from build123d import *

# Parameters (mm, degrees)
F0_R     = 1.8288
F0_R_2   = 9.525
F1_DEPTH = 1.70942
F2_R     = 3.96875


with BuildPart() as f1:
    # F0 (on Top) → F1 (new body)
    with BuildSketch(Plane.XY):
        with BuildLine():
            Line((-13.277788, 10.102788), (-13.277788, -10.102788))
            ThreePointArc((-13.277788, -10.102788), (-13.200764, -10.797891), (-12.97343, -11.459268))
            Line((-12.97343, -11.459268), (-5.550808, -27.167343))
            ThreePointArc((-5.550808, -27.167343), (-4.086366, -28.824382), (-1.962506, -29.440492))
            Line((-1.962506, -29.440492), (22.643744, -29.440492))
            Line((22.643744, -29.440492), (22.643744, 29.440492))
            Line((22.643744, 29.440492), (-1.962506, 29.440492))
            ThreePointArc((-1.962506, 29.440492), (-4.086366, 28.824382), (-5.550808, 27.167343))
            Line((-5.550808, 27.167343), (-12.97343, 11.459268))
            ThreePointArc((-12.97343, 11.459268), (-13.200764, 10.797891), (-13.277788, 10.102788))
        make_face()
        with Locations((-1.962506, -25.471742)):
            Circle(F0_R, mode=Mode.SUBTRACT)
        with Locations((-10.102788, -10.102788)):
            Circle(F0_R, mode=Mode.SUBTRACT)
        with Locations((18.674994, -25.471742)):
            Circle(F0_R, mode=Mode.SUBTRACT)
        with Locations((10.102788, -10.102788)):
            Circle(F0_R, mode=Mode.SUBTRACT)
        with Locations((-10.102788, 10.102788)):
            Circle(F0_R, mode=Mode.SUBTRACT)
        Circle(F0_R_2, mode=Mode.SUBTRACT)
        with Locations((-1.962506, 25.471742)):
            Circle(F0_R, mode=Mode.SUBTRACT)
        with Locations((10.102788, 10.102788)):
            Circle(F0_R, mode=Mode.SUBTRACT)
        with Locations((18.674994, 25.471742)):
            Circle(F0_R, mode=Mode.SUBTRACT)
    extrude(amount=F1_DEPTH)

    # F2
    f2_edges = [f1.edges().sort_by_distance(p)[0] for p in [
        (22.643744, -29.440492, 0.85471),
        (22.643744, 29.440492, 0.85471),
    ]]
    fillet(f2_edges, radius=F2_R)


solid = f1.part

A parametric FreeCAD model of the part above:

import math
import FreeCAD as App
import Part
import Sketcher
from FreeCAD import Vector
Q = App.Units.Quantity


def edges_at(feature, points):
    """Names of the edges that pass closest to the given points."""
    edges = feature.Shape.Edges
    near = lambda p: min(range(len(edges)), key=lambda i: edges[i].distToShape(Part.Vertex(*p))[0])
    return sorted({f"Edge{near(p) + 1}" for p in points})

doc = App.newDocument("Part")
params = doc.addObject("Spreadsheet::Sheet", "Params")
for row, (alias, value) in enumerate([
    ("sketch1_diameter", "0.75 in"),
    ("sketch1_diameter2", "0.144 in"),
    ("sketch1_radius", "0.1250002 in"),
    ("sketch1_radius2", "0.15625 in"),
    ("sketch1_width", "0.96875 in"),
    ("pad1_length", "0.0673 in"),
    ("fillet_radius", "0.15625 in"),
], start=1):
    params.set(f"A{row}", alias)
    params.set(f"B{row}", "=" + value)
    params.setAlias(f"B{row}", alias)

body = doc.addObject("PartDesign::Body", "Body")

sketch1 = body.newObject("Sketcher::SketchObject", "Sketch")
sketch1.AttachmentSupport = (doc.getObject("XY_Plane"), [""])
sketch1.MapMode = "FlatFace"
sketch1.addGeometry([
    Part.LineSegment(Vector(-13.3, 10.1, 0), Vector(-13.3, -10.1, 0)),
    Part.ArcOfCircle(Part.Circle(Vector(-10.1, -10.1, 0), Vector(0, 0, 1), 3.2), math.radians(-180), math.radians(-155)),
    Part.LineSegment(Vector(-13, -11.5, 0), Vector(-5.6, -27.2, 0)),
    Part.ArcOfCircle(Part.Circle(Vector(-2, -25.5, 0), Vector(0, 0, 1), 4), math.radians(-155), math.radians(-90)),
    Part.LineSegment(Vector(-2, -29.4, 0), Vector(22.6, -29.4, 0)),
    Part.LineSegment(Vector(22.6, -29.4, 0), Vector(22.6, 29.4, 0)),
    Part.LineSegment(Vector(22.6, 29.4, 0), Vector(-2, 29.4, 0)),
    Part.ArcOfCircle(Part.Circle(Vector(-2, 25.5, 0), Vector(0, 0, 1), 4), math.radians(90), math.radians(155)),
    Part.LineSegment(Vector(-5.6, 27.2, 0), Vector(-13, 11.5, 0)),
    Part.ArcOfCircle(Part.Circle(Vector(-10.1, 10.1, 0), Vector(0, 0, 1), 3.2), math.radians(155), math.radians(180)),
    Part.Circle(Vector(-2, -25.5, 0), Vector(0, 0, 1), 1.8),
    Part.Circle(Vector(-10.1, -10.1, 0), Vector(0, 0, 1), 1.8),
    Part.Circle(Vector(0, 0, 0), Vector(0, 0, 1), 9.5),
    Part.Circle(Vector(18.7, -25.5, 0), Vector(0, 0, 1), 1.8),
    Part.Circle(Vector(10.1, -10.1, 0), Vector(0, 0, 1), 1.8),
    Part.Circle(Vector(-10.1, 10.1, 0), Vector(0, 0, 1), 1.8),
    Part.Circle(Vector(-2, 25.5, 0), Vector(0, 0, 1), 1.8),
    Part.Circle(Vector(10.1, 10.1, 0), Vector(0, 0, 1), 1.8),
    Part.Circle(Vector(18.7, 25.5, 0), Vector(0, 0, 1), 1.8),
], False)
sketch1.addConstraint([
    Sketcher.Constraint("Tangent", 0, 2, 1, 1),
    Sketcher.Constraint("Tangent", 1, 2, 2, 1),
    Sketcher.Constraint("Tangent", 2, 2, 3, 1),
    Sketcher.Constraint("Tangent", 3, 2, 4, 1),
    Sketcher.Constraint("Coincident", 4, 2, 5, 1),
    Sketcher.Constraint("Coincident", 5, 2, 6, 1),
    Sketcher.Constraint("Tangent", 6, 2, 7, 1),
    Sketcher.Constraint("Tangent", 7, 2, 8, 1),
    Sketcher.Constraint("Tangent", 8, 2, 9, 1),
    Sketcher.Constraint("Tangent", 9, 2, 0, 1),
    Sketcher.Constraint("Vertical", 0),
    Sketcher.Constraint("Horizontal", 4),
    Sketcher.Constraint("Vertical", 5),
    Sketcher.Constraint("Horizontal", 6),
    Sketcher.Constraint("Coincident", 12, 3, -1, 1),
    Sketcher.Constraint("Coincident", 10, 3, 3, 3),
    Sketcher.Constraint("Coincident", 11, 3, 1, 3),
    Sketcher.Constraint("Coincident", 15, 3, 9, 3),
    Sketcher.Constraint("Coincident", 16, 3, 7, 3),
    Sketcher.Constraint("Equal", 3, 7),
    Sketcher.Constraint("Equal", 1, 9),
    Sketcher.Constraint("Equal", 10, 11),
    Sketcher.Constraint("Equal", 11, 13),
    Sketcher.Constraint("Equal", 13, 14),
    Sketcher.Constraint("Equal", 14, 15),
    Sketcher.Constraint("Equal", 15, 16),
    Sketcher.Constraint("Equal", 16, 17),
    Sketcher.Constraint("Equal", 17, 18),
    Sketcher.Constraint("Symmetric", 9, 3, 14, 3, -1, 1),
    Sketcher.Constraint("Symmetric", 1, 3, 17, 3, -1, 1),
    Sketcher.Constraint("Symmetric", 3, 3, 7, 3, -1),
    Sketcher.Constraint("Symmetric", 13, 3, 18, 3, -1),
    Sketcher.Constraint("Horizontal", 10, 3, 13, 3),
    Sketcher.Constraint("Horizontal", 11, 3, 14, 3),
    Sketcher.Constraint("Diameter", 12, Q("0.75 in")),
    Sketcher.Constraint("Diameter", 10, Q("0.144 in")),
    Sketcher.Constraint("Radius", 1, Q("0.1250002 in")),
    Sketcher.Constraint("Radius", 3, Q("0.15625 in")),
    Sketcher.Constraint("DistanceX", 4, 1, 4, 2, Q("0.96875 in")),
    Sketcher.Constraint("DistanceX", 10, 3, 13, 3, Q("0.8125 in")),
    Sketcher.Constraint("DistanceX", 2, 2, 3, 3, Q("3.588302 mm")),
    Sketcher.Constraint("DistanceY", 0, 2, 0, 1, Q("20.205576 mm")),
    Sketcher.Constraint("DistanceY", 5, 1, 5, 2, Q("58.880984 mm")),
    Sketcher.Constraint("DistanceX", 1, 2, -1, 1, Q("12.97343 mm")),
])
sketch1.setExpression("Constraints[34]", "Params.sketch1_diameter")
sketch1.setExpression("Constraints[35]", "Params.sketch1_diameter2")
sketch1.setExpression("Constraints[36]", "Params.sketch1_radius")
sketch1.setExpression("Constraints[37]", "Params.sketch1_radius2")
sketch1.setExpression("Constraints[38]", "Params.sketch1_width")
pad1 = body.newObject("PartDesign::Pad", "Pad")
pad1.Profile = sketch1
pad1.setExpression("Length", "Params.pad1_length")
doc.recompute()

fillet = body.newObject("PartDesign::Fillet", "Fillet")
fillet.Base = (pad1, edges_at(pad1, [(22.644, -29.44, 0.855), (22.644, 29.44, 0.855)]))
fillet.setExpression("Radius", "Params.fillet_radius")

doc.recompute()
